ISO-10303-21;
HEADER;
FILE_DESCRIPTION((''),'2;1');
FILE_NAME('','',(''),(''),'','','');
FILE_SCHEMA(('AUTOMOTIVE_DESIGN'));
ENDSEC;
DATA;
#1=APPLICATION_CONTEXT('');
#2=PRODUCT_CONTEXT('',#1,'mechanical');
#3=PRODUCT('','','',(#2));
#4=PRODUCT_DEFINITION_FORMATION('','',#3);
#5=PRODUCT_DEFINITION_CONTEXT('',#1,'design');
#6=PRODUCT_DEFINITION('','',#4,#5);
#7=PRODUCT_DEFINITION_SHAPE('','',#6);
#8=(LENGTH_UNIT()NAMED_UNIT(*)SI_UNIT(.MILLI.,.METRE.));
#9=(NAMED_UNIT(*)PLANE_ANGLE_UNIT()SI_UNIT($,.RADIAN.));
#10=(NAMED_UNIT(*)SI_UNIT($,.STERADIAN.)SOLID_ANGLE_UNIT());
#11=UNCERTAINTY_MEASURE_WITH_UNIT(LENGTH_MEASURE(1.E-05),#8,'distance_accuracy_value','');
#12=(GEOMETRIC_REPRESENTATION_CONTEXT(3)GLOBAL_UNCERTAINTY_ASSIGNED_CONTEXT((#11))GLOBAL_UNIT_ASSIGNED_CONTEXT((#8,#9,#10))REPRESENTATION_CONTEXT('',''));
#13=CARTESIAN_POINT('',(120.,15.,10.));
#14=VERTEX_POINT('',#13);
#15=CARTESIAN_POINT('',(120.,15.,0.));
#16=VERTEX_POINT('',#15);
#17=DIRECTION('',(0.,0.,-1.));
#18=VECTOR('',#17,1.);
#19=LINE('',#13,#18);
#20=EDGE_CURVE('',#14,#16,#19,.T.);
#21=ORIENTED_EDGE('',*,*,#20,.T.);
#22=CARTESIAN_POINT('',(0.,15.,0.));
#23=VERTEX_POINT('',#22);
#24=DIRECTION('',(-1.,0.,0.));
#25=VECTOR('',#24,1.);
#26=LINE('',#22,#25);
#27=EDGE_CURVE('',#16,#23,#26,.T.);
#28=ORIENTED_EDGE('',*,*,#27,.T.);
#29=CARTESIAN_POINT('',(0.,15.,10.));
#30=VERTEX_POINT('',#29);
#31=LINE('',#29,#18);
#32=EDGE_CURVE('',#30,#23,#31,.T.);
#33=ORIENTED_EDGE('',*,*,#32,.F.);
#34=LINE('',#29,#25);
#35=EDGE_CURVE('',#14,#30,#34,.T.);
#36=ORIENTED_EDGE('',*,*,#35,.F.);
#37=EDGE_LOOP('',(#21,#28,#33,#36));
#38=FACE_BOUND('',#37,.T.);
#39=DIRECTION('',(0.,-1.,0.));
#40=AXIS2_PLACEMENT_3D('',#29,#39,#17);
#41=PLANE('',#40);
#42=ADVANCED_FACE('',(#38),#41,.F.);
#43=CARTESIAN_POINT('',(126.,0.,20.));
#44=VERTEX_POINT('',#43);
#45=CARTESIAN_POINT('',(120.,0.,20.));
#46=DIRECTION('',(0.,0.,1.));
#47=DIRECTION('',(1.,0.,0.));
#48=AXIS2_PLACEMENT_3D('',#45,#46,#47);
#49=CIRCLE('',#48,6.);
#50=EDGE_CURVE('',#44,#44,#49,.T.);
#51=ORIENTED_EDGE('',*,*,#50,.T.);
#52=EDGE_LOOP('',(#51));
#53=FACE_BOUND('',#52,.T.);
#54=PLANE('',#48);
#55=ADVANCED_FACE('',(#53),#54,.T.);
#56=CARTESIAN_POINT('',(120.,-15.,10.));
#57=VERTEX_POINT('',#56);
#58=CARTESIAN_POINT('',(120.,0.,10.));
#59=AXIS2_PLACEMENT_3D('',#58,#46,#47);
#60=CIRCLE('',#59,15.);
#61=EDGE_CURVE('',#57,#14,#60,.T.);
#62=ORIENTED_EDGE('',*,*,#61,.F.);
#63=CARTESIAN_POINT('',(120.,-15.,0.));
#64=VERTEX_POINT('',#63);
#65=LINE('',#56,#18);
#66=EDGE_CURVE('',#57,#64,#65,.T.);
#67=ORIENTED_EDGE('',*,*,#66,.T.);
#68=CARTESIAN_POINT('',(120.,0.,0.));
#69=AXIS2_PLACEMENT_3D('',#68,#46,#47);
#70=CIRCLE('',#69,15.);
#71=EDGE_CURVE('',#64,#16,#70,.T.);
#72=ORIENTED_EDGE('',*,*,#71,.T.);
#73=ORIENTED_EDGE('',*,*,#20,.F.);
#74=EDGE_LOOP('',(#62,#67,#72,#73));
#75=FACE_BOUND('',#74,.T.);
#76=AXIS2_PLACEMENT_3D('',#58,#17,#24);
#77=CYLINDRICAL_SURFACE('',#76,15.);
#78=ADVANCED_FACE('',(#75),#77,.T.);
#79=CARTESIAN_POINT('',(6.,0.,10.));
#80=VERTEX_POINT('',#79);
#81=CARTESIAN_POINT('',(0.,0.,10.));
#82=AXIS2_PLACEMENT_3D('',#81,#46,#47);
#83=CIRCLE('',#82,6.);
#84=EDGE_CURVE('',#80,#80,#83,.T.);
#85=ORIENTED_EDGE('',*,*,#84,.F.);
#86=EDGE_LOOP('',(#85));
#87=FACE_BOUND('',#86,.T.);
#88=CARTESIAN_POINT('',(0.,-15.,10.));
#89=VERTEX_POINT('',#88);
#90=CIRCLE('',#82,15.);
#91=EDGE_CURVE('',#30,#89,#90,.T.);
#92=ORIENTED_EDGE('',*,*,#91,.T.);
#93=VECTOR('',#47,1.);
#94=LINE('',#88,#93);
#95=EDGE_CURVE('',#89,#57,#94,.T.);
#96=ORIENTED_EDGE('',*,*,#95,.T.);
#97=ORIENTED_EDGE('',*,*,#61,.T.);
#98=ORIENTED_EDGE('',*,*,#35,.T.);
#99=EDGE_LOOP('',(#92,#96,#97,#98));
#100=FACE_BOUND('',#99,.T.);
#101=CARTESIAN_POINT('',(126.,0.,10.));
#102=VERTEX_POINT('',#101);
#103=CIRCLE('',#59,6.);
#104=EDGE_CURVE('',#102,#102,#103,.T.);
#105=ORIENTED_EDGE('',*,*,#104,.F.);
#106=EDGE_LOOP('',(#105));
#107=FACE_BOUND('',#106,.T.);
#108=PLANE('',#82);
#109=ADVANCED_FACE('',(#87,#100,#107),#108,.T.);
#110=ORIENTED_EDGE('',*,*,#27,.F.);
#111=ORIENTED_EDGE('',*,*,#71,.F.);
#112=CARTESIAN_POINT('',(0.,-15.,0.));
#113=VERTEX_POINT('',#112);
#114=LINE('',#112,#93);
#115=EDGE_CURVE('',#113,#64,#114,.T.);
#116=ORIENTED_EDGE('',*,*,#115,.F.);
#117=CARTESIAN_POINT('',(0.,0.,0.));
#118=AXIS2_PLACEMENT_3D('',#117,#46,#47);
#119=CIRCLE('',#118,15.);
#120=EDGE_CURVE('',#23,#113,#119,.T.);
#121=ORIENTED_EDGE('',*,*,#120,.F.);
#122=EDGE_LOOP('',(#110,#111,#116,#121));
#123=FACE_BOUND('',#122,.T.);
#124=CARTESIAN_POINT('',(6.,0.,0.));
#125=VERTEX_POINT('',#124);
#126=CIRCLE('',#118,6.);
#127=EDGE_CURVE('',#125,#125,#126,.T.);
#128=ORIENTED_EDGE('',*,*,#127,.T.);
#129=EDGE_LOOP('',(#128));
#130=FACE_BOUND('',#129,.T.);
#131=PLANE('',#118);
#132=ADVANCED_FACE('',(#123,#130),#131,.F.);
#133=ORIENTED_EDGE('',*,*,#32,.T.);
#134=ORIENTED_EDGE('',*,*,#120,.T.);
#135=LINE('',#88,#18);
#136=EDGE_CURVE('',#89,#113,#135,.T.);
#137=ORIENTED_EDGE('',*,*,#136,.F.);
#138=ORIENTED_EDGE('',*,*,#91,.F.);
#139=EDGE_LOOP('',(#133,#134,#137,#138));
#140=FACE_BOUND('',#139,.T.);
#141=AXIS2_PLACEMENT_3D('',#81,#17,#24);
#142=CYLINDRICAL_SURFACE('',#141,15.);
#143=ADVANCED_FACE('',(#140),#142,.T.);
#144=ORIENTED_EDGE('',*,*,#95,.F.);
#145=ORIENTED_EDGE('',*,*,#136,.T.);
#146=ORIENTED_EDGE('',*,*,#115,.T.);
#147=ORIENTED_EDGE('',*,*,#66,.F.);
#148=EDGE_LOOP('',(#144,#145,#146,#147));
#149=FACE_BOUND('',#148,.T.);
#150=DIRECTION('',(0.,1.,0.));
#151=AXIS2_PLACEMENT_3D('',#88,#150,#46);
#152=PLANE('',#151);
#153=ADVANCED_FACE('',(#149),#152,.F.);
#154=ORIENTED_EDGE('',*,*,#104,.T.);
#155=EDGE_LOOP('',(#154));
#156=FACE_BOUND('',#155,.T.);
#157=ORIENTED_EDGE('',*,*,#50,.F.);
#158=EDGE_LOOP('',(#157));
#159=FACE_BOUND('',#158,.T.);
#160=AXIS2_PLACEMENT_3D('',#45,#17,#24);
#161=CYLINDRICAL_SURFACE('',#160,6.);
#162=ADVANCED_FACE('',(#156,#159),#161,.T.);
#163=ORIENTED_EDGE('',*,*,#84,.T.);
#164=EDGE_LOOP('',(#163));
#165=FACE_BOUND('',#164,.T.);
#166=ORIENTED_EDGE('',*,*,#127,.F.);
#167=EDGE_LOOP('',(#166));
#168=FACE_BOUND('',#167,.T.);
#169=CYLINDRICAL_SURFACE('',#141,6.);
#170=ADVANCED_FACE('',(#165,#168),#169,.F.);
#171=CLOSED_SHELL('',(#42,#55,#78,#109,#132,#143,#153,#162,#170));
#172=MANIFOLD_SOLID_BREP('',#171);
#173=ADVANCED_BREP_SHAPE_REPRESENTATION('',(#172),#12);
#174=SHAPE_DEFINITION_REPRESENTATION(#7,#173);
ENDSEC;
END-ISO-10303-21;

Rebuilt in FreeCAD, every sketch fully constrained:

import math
import FreeCAD as App
import Part
import Sketcher
from FreeCAD import Vector
Q = App.Units.Quantity

doc = App.newDocument("Part")
body = doc.addObject("PartDesign::Body", "Body")

# Sketch on XY plane
sketch1 = body.newObject("Sketcher::SketchObject", "Sketch")
sketch1.AttachmentSupport = (doc.getObject("XY_Plane"), [""])
sketch1.MapMode = "FlatFace"
sketch1.addGeometry([
    Part.LineSegment(Vector(120, 15, 0), Vector(0, 15, 0)),  # 0
    Part.ArcOfCircle(Part.Circle(Vector(0, 0, 0), Vector(0, 0, 1), 15), math.radians(90), math.radians(270)),  # 1
    Part.LineSegment(Vector(0, -15, 0), Vector(120, -15, 0)),  # 2
    Part.ArcOfCircle(Part.Circle(Vector(120, 0, 0), Vector(0, 0, 1), 15), math.radians(-90), math.radians(90)),  # 3
    Part.Circle(Vector(0, 0, 0), Vector(0, 0, 1), 6),  # 4
], False)
sketch1.addConstraint([
    Sketcher.Constraint("Tangent", 0, 2, 1, 1),
    Sketcher.Constraint("Tangent", 1, 2, 2, 1),
    Sketcher.Constraint("Tangent", 2, 2, 3, 1),
    Sketcher.Constraint("Tangent", 3, 2, 0, 1),
    Sketcher.Constraint("Horizontal", 0),
    Sketcher.Constraint("Horizontal", 2),
    Sketcher.Constraint("Coincident", 1, 3, -1, 1),
    Sketcher.Constraint("Coincident", 4, 3, -1, 1),
    Sketcher.Constraint("Diameter", 4, Q("12 mm")),
    Sketcher.Constraint("Radius", 1, Q("15 mm")),
    Sketcher.Constraint("DistanceX", 0, 2, 0, 1, Q("120 mm")),
])
pad1 = body.newObject("PartDesign::Pad", "Pad")
pad1.Profile = sketch1
pad1.Length = 10

# Sketch on XY plane
sketch2 = body.newObject("Sketcher::SketchObject", "Sketch001")
sketch2.AttachmentSupport = (doc.getObject("XY_Plane"), [""])
sketch2.MapMode = "FlatFace"
sketch2.AttachmentOffset = App.Placement(Vector(0, 0, 10), App.Rotation())
sketch2.addGeometry(Part.Circle(Vector(120, 0, 0), Vector(0, 0, 1), 6), False)
sketch2.addConstraint([
    Sketcher.Constraint("PointOnObject", 0, 3, -1),
    Sketcher.Constraint("Diameter", 0, Q("12 mm")),
    Sketcher.Constraint("DistanceX", -1, 1, 0, 3, Q("120 mm")),
])
pad2 = body.newObject("PartDesign::Pad", "Pad001")
pad2.Profile = sketch2
pad2.Length = 10

doc.recompute()
